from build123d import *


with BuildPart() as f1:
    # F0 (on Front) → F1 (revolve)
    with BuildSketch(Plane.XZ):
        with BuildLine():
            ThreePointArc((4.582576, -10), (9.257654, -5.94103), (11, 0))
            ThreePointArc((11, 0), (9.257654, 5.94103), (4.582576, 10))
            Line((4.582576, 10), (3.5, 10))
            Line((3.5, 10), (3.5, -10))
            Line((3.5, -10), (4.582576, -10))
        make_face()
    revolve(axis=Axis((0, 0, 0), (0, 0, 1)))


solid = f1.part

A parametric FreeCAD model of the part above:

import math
import FreeCAD as App
import Part
import Sketcher
from FreeCAD import Vector
Q = App.Units.Quantity

doc = App.newDocument("Part")
body = doc.addObject("PartDesign::Body", "Body")

# Sketch on XZ plane
sketch1 = body.newObject("Sketcher::SketchObject", "Sketch")
sketch1.AttachmentSupport = (doc.getObject("XZ_Plane"), [""])
sketch1.MapMode = "FlatFace"
sketch1.addGeometry(Part.ArcOfCircle(Part.Circle(Vector(-0.000002, 0.000001, 0), Vector(0, 0, 1), 11.000002), math.radians(-65.380016), math.radians(-0.000005)), False)
sketch1.addGeometry(Part.ArcOfCircle(Part.Circle(Vector(-0.000002, -0.000001, 0), Vector(0, 0, 1), 11.000002), math.radians(0.000005), math.radians(65.380016)), False)
sketch1.addGeometry(Part.LineSegment(Vector(4.582576, 10, 0), Vector(3.5, 10, 0)), False)
sketch1.addGeometry(Part.LineSegment(Vector(3.5, 10, 0), Vector(3.5, -10, 0)), False)
sketch1.addGeometry(Part.LineSegment(Vector(3.5, -10, 0), Vector(4.582576, -10, 0)), False)
sketch1.addConstraint(Sketcher.Constraint("Tangent", 0, 2, 1, 1))
sketch1.addConstraint(Sketcher.Constraint("Coincident", 1, 2, 2, 1))
sketch1.addConstraint(Sketcher.Constraint("Coincident", 2, 2, 3, 1))
sketch1.addConstraint(Sketcher.Constraint("Coincident", 3, 2, 4, 1))
sketch1.addConstraint(Sketcher.Constraint("Coincident", 4, 2, 0, 1))
sketch1.addConstraint(Sketcher.Constraint("Horizontal", 2))
sketch1.addConstraint(Sketcher.Constraint("Vertical", 3))
sketch1.addConstraint(Sketcher.Constraint("Horizontal", 4))
sketch1.addConstraint(Sketcher.Constraint("Coincident", 0, 3, -1, 1))
sketch1.addConstraint(Sketcher.Constraint("Equal", 0, 1))
sketch1.addConstraint(Sketcher.Constraint("PointOnObject", 0, 2, -1))
sketch1.addConstraint(Sketcher.Constraint("Vertical", 1, 2, 4, 2))
sketch1.addConstraint(Sketcher.Constraint("Radius", 0, Q("11.000002 mm")))
sketch1.addConstraint(Sketcher.Constraint("DistanceY", 3, 2, 3, 1, Q("20 mm")))
sketch1.addConstraint(Sketcher.Constraint("DistanceX", -1, 1, 2, 2, Q("3.5 mm")))
revolution = body.newObject("PartDesign::Revolution", "Revolution")
revolution.Profile = sketch1
revolution.ReferenceAxis = (sketch1, ["V_Axis"])
revolution.Angle = 360

doc.recompute()
